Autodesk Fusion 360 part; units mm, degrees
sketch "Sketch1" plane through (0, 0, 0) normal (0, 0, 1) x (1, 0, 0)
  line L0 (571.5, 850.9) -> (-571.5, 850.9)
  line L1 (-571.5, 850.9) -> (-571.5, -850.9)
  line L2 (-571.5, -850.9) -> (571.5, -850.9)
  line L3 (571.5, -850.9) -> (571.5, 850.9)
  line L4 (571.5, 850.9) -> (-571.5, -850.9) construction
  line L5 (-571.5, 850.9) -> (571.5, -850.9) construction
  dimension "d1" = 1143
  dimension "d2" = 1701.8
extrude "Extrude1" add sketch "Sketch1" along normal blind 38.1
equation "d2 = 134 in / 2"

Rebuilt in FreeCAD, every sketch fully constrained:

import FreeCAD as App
import Part
import Sketcher
from FreeCAD import Vector
Q = App.Units.Quantity

doc = App.newDocument("Part")
params = doc.addObject("Spreadsheet::Sheet", "Params")
for row, (alias, value) in enumerate([
    ("sketch1_width", "45 in"),
    ("sketch1_height", "67 in"),
    ("pad1_length", "1.5 in"),
], start=1):
    params.set(f"A{row}", alias)
    params.set(f"B{row}", "=" + value)
    params.setAlias(f"B{row}", alias)

body = doc.addObject("PartDesign::Body", "Body")

sketch1 = body.newObject("Sketcher::SketchObject", "Sketch")
sketch1.AttachmentSupport = (doc.getObject("XY_Plane"), [""])
sketch1.MapMode = "FlatFace"
sketch1.addGeometry([
    Part.LineSegment(Vector(572, -851, 0), Vector(572, 851, 0)),
    Part.LineSegment(Vector(572, 851, 0), Vector(-572, 851, 0)),
    Part.LineSegment(Vector(-572, 851, 0), Vector(-572, -851, 0)),
    Part.LineSegment(Vector(-572, -851, 0), Vector(572, -851, 0)),
], False)
sketch1.addConstraint([
    Sketcher.Constraint("Coincident", 0, 2, 1, 1),
    Sketcher.Constraint("Coincident", 1, 2, 2, 1),
    Sketcher.Constraint("Coincident", 2, 2, 3, 1),
    Sketcher.Constraint("Coincident", 3, 2, 0, 1),
    Sketcher.Constraint("Vertical", 0),
    Sketcher.Constraint("Horizontal", 1),
    Sketcher.Constraint("Vertical", 2),
    Sketcher.Constraint("Horizontal", 3),
    Sketcher.Constraint("Symmetric", 0, 2, 2, 2, -1, 1),
    Sketcher.Constraint("DistanceX", 1, 2, 1, 1, Q("45 in")),
    Sketcher.Constraint("DistanceY", 0, 1, 0, 2, Q("67 in")),
])
sketch1.setExpression("Constraints[9]", "Params.sketch1_width")
sketch1.setExpression("Constraints[10]", "Params.sketch1_height")
pad1 = body.newObject("PartDesign::Pad", "Pad")
pad1.Profile = sketch1
pad1.setExpression("Length", "Params.pad1_length")

doc.recompute()
